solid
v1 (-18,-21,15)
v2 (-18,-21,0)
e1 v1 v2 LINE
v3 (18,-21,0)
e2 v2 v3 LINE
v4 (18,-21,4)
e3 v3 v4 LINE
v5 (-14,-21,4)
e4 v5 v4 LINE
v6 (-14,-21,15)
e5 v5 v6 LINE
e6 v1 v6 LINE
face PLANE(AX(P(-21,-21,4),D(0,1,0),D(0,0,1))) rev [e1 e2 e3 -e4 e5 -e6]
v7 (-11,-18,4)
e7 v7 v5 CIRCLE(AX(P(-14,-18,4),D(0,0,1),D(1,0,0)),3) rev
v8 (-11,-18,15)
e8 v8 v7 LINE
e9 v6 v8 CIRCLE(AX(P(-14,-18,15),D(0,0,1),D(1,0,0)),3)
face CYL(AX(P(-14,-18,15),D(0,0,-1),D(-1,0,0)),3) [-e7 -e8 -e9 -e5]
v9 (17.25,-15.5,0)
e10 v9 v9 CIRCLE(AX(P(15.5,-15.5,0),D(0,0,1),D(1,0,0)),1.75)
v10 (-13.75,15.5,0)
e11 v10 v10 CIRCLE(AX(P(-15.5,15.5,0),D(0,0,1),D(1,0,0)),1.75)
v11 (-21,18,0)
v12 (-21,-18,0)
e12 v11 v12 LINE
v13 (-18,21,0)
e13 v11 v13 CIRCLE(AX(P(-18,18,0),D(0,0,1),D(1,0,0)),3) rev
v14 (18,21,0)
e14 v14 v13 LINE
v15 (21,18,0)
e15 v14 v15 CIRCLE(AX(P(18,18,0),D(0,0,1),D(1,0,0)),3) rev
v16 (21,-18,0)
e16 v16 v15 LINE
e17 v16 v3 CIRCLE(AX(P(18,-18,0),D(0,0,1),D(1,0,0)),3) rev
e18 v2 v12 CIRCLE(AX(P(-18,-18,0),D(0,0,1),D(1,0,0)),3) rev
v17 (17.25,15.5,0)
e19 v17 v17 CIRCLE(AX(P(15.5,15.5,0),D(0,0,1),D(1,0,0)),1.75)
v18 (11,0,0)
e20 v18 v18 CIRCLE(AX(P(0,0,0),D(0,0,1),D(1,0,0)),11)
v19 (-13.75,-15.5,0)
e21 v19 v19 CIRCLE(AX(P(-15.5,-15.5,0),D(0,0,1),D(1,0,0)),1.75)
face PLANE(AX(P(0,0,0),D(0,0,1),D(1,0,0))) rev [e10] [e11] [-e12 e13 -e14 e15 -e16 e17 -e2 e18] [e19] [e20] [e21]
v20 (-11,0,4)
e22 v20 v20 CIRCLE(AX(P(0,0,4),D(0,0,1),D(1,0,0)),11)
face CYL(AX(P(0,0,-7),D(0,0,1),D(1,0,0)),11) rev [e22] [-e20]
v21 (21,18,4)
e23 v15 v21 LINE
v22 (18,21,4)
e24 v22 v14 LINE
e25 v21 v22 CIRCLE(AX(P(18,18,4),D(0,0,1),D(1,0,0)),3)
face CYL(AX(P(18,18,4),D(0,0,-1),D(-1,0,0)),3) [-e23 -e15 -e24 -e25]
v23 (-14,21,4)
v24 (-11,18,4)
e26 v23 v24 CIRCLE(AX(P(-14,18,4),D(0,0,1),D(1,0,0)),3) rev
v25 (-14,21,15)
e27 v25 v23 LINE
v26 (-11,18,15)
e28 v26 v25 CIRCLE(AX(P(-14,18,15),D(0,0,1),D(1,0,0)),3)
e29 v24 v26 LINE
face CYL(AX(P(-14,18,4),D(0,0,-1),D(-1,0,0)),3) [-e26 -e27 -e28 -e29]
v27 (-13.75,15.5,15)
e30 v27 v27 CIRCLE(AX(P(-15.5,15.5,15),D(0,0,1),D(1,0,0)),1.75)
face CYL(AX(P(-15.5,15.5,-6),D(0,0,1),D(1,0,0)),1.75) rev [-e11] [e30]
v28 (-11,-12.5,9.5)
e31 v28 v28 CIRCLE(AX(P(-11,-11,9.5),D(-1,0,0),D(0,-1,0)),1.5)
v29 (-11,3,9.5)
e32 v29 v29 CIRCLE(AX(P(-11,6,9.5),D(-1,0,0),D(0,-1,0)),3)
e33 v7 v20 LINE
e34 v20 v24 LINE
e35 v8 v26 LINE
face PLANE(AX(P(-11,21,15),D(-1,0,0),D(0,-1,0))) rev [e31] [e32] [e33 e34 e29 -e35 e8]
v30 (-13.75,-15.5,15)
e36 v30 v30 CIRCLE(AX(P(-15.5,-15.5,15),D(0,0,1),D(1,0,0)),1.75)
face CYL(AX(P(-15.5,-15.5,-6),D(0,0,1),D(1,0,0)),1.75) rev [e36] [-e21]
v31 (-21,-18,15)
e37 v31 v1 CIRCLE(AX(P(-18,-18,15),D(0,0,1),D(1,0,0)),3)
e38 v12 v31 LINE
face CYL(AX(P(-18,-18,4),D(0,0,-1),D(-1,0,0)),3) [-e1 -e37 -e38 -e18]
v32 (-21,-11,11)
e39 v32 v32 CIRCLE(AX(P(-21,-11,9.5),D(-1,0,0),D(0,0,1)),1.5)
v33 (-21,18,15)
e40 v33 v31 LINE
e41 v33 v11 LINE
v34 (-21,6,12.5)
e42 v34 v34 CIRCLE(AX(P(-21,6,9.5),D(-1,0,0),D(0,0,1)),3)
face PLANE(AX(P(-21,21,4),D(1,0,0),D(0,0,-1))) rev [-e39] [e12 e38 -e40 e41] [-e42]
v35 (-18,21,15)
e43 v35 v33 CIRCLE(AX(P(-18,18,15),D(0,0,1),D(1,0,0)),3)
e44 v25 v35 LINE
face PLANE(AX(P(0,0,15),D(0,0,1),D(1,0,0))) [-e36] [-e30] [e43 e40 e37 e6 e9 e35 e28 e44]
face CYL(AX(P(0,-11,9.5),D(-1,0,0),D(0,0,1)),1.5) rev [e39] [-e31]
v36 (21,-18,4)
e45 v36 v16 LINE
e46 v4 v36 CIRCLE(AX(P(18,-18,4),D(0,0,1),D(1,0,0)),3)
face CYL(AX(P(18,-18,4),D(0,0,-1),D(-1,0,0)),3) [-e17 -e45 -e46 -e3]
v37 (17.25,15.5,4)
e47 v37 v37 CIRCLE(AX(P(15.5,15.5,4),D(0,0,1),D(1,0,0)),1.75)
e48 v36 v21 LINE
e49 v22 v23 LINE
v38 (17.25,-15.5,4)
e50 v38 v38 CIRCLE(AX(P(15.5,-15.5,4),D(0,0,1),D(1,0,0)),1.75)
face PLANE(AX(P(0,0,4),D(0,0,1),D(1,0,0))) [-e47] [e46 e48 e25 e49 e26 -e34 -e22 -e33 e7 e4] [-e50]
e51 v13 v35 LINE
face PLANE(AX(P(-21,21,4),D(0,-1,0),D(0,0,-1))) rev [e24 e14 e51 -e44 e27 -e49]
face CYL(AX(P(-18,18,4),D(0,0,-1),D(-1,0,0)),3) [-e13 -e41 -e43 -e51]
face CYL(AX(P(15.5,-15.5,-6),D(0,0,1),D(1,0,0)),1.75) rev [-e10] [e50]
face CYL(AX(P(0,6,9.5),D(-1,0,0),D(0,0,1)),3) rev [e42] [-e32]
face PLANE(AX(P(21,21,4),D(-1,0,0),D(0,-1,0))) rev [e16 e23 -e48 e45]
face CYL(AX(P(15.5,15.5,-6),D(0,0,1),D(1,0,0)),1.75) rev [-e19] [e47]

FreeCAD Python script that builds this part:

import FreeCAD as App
import Part
import Sketcher
from FreeCAD import Vector


def edges_at(feature, points):
    """Names of the edges that pass closest to the given points."""
    edges = feature.Shape.Edges
    near = lambda p: min(range(len(edges)), key=lambda i: edges[i].distToShape(Part.Vertex(*p))[0])
    return sorted({f"Edge{near(p) + 1}" for p in points})

doc = App.newDocument("Part")
body = doc.addObject("PartDesign::Body", "Body")

# Sketch on XY plane
sketch1 = doc.addObject("Sketcher::SketchObject", "Sketch")
body.addObject(sketch1)
sketch1.AttachmentSupport = (doc.XY_Plane, [""])
sketch1.MapMode = "FlatFace"
sketch1.addGeometry(Part.LineSegment(Vector(-21, 21, 0), Vector(-21, -21, 0)), False)
sketch1.addGeometry(Part.LineSegment(Vector(-21, -21, 0), Vector(21, -21, 0)), False)
sketch1.addGeometry(Part.LineSegment(Vector(21, -21, 0), Vector(21, 21, 0)), False)
sketch1.addGeometry(Part.LineSegment(Vector(21, 21, 0), Vector(-21, 21, 0)), False)
sketch1.addConstraint(Sketcher.Constraint("Coincident", 0, 2, 1, 1))
sketch1.addConstraint(Sketcher.Constraint("Coincident", 1, 2, 2, 1))
sketch1.addConstraint(Sketcher.Constraint("Coincident", 2, 2, 3, 1))
sketch1.addConstraint(Sketcher.Constraint("Coincident", 3, 2, 0, 1))
sketch1.addConstraint(Sketcher.Constraint("Vertical", 0))
sketch1.addConstraint(Sketcher.Constraint("Horizontal", 1))
sketch1.addConstraint(Sketcher.Constraint("Vertical", 2))
sketch1.addConstraint(Sketcher.Constraint("Horizontal", 3))
sketch1.addConstraint(Sketcher.Constraint("Symmetric", 0, 2, 2, 2, -1, 1))
sketch1.addConstraint(Sketcher.Constraint("Equal", 3, 0))
sketch1.addConstraint(Sketcher.Constraint("DistanceX", 1, 1, 1, 2, 42.0))
pad1 = doc.addObject("PartDesign::Pad", "Pad")
body.addObject(pad1)
pad1.Profile = sketch1
pad1.Length = 4

# Sketch on XY plane
sketch2 = doc.addObject("Sketcher::SketchObject", "Sketch001")
body.addObject(sketch2)
sketch2.AttachmentSupport = (doc.XY_Plane, [""])
sketch2.MapMode = "FlatFace"
sketch2.AttachmentOffset = App.Placement(Vector(0, 0, 4), App.Rotation())
sketch2.addGeometry(Part.LineSegment(Vector(-21, 21, 0), Vector(-21, -21, 0)), False)
sketch2.addGeometry(Part.LineSegment(Vector(-21, -21, 0), Vector(-11, -21, 0)), False)
sketch2.addGeometry(Part.LineSegment(Vector(-11, -21, 0), Vector(-11, 21, 0)), False)
sketch2.addGeometry(Part.LineSegment(Vector(-11, 21, 0), Vector(-21, 21, 0)), False)
sketch2.addConstraint(Sketcher.Constraint("Coincident", 0, 2, 1, 1))
sketch2.addConstraint(Sketcher.Constraint("Coincident", 1, 2, 2, 1))
sketch2.addConstraint(Sketcher.Constraint("Coincident", 2, 2, 3, 1))
sketch2.addConstraint(Sketcher.Constraint("Coincident", 3, 2, 0, 1))
sketch2.addConstraint(Sketcher.Constraint("Vertical", 0))
sketch2.addConstraint(Sketcher.Constraint("Horizontal", 1))
sketch2.addConstraint(Sketcher.Constraint("Vertical", 2))
sketch2.addConstraint(Sketcher.Constraint("Horizontal", 3))
sketch2.addConstraint(Sketcher.Constraint("DistanceX", 1, 1, 1, 2, 10.0))
sketch2.addConstraint(Sketcher.Constraint("DistanceY", 0, 2, 0, 1, 42.0))
sketch2.addConstraint(Sketcher.Constraint("DistanceX", 0, 2, -1, 1, 21.0))
sketch2.addConstraint(Sketcher.Constraint("DistanceY", 0, 2, -1, 1, 21.0))
pad2 = doc.addObject("PartDesign::Pad", "Pad001")
body.addObject(pad2)
pad2.Profile = sketch2
pad2.Length = 11

# Sketch on XY plane
sketch3 = doc.addObject("Sketcher::SketchObject", "Sketch002")
body.addObject(sketch3)
sketch3.AttachmentSupport = (doc.XY_Plane, [""])
sketch3.MapMode = "FlatFace"
sketch3.AttachmentOffset = App.Placement(Vector(0, 0, 4), App.Rotation())
sketch3.addGeometry(Part.Circle(Vector(0, 0, 0), Vector(0, 0, 1), 11), False)
sketch3.addConstraint(Sketcher.Constraint("Coincident", 0, 3, -1, 1))
sketch3.addConstraint(Sketcher.Constraint("Diameter", 0, 22.0))
pocket1 = doc.addObject("PartDesign::Pocket", "Pocket")
body.addObject(pocket1)
pocket1.Profile = sketch3
pocket1.Length = 11
doc.recompute()

fillet = doc.addObject("PartDesign::Fillet", "Fillet")
body.addObject(fillet)
fillet.Base = (pocket1, edges_at(pocket1, [
    (-11, -21, 9.5),
    (-11, 21, 9.5),
    (21, -21, 2),
    (-21, -21, 7.5),
    (-21, 21, 7.5),
    (21, 21, 2),
]))
fillet.Radius = 3

# Sketch on XY plane
sketch4 = doc.addObject("Sketcher::SketchObject", "Sketch003")
body.addObject(sketch4)
sketch4.AttachmentSupport = (doc.XY_Plane, [""])
sketch4.MapMode = "FlatFace"
sketch4.AttachmentOffset = App.Placement(Vector(0, 0, 15), App.Rotation())
sketch4.addGeometry(Part.Circle(Vector(-15.5, 15.5, 0), Vector(0, 0, 1), 1.8), False)
sketch4.addGeometry(Part.Circle(Vector(-15.5, -15.5, 0), Vector(0, 0, 1), 1.8), False)
sketch4.addGeometry(Part.Circle(Vector(15.5, 15.5, 0), Vector(0, 0, 1), 1.8), False)
sketch4.addGeometry(Part.Circle(Vector(15.5, -15.5, 0), Vector(0, 0, 1), 1.8), False)
sketch4.addConstraint(Sketcher.Constraint("Equal", 0, 1))
sketch4.addConstraint(Sketcher.Constraint("Equal", 1, 2))
sketch4.addConstraint(Sketcher.Constraint("Equal", 2, 3))
sketch4.addConstraint(Sketcher.Constraint("Symmetric", 1, 3, 2, 3, -1, 1))
sketch4.addConstraint(Sketcher.Constraint("Symmetric", 0, 3, 3, 3, -1, 1))
sketch4.addConstraint(Sketcher.Constraint("Symmetric", 0, 3, 2, 3, -2))
sketch4.addConstraint(Sketcher.Constraint("Diameter", 0, 3.5))
sketch4.addConstraint(Sketcher.Constraint("DistanceY", 1, 3, 0, 3, 31.0))
sketch4.addConstraint(Sketcher.Constraint("DistanceX", 0, 3, 2, 3, 31.0))
pocket2 = doc.addObject("PartDesign::Pocket", "Pocket001")
body.addObject(pocket2)
pocket2.Profile = sketch4
pocket2.Length = 21

# Sketch on YZ plane
sketch5 = doc.addObject("Sketcher::SketchObject", "Sketch004")
body.addObject(sketch5)
sketch5.AttachmentSupport = (doc.YZ_Plane, [""])
sketch5.MapMode = "FlatFace"
sketch5.AttachmentOffset = App.Placement(Vector(0, 0, -21), App.Rotation())
sketch5.addGeometry(Part.Circle(Vector(6, 9.5, 0), Vector(0, 0, 1), 3), False)
sketch5.addGeometry(Part.Circle(Vector(-11, 9.5, 0), Vector(0, 0, 1), 1.5), False)
sketch5.addConstraint(Sketcher.Constraint("Horizontal", 0, 3, 1, 3))
sketch5.addConstraint(Sketcher.Constraint("Diameter", 0, 6.0))
sketch5.addConstraint(Sketcher.Constraint("Diameter", 1, 3.0))
sketch5.addConstraint(Sketcher.Constraint("DistanceX", -1, 1, 0, 3, 6.0))
sketch5.addConstraint(Sketcher.Constraint("DistanceX", 1, 3, -1, 1, 11.0))
sketch5.addConstraint(Sketcher.Constraint("DistanceY", -1, 1, 0, 3, 9.5))
pocket3 = doc.addObject("PartDesign::Pocket", "Pocket002")
body.addObject(pocket3)
pocket3.Profile = sketch5
pocket3.Length = 21
pocket3.Reversed = True

doc.recompute()
